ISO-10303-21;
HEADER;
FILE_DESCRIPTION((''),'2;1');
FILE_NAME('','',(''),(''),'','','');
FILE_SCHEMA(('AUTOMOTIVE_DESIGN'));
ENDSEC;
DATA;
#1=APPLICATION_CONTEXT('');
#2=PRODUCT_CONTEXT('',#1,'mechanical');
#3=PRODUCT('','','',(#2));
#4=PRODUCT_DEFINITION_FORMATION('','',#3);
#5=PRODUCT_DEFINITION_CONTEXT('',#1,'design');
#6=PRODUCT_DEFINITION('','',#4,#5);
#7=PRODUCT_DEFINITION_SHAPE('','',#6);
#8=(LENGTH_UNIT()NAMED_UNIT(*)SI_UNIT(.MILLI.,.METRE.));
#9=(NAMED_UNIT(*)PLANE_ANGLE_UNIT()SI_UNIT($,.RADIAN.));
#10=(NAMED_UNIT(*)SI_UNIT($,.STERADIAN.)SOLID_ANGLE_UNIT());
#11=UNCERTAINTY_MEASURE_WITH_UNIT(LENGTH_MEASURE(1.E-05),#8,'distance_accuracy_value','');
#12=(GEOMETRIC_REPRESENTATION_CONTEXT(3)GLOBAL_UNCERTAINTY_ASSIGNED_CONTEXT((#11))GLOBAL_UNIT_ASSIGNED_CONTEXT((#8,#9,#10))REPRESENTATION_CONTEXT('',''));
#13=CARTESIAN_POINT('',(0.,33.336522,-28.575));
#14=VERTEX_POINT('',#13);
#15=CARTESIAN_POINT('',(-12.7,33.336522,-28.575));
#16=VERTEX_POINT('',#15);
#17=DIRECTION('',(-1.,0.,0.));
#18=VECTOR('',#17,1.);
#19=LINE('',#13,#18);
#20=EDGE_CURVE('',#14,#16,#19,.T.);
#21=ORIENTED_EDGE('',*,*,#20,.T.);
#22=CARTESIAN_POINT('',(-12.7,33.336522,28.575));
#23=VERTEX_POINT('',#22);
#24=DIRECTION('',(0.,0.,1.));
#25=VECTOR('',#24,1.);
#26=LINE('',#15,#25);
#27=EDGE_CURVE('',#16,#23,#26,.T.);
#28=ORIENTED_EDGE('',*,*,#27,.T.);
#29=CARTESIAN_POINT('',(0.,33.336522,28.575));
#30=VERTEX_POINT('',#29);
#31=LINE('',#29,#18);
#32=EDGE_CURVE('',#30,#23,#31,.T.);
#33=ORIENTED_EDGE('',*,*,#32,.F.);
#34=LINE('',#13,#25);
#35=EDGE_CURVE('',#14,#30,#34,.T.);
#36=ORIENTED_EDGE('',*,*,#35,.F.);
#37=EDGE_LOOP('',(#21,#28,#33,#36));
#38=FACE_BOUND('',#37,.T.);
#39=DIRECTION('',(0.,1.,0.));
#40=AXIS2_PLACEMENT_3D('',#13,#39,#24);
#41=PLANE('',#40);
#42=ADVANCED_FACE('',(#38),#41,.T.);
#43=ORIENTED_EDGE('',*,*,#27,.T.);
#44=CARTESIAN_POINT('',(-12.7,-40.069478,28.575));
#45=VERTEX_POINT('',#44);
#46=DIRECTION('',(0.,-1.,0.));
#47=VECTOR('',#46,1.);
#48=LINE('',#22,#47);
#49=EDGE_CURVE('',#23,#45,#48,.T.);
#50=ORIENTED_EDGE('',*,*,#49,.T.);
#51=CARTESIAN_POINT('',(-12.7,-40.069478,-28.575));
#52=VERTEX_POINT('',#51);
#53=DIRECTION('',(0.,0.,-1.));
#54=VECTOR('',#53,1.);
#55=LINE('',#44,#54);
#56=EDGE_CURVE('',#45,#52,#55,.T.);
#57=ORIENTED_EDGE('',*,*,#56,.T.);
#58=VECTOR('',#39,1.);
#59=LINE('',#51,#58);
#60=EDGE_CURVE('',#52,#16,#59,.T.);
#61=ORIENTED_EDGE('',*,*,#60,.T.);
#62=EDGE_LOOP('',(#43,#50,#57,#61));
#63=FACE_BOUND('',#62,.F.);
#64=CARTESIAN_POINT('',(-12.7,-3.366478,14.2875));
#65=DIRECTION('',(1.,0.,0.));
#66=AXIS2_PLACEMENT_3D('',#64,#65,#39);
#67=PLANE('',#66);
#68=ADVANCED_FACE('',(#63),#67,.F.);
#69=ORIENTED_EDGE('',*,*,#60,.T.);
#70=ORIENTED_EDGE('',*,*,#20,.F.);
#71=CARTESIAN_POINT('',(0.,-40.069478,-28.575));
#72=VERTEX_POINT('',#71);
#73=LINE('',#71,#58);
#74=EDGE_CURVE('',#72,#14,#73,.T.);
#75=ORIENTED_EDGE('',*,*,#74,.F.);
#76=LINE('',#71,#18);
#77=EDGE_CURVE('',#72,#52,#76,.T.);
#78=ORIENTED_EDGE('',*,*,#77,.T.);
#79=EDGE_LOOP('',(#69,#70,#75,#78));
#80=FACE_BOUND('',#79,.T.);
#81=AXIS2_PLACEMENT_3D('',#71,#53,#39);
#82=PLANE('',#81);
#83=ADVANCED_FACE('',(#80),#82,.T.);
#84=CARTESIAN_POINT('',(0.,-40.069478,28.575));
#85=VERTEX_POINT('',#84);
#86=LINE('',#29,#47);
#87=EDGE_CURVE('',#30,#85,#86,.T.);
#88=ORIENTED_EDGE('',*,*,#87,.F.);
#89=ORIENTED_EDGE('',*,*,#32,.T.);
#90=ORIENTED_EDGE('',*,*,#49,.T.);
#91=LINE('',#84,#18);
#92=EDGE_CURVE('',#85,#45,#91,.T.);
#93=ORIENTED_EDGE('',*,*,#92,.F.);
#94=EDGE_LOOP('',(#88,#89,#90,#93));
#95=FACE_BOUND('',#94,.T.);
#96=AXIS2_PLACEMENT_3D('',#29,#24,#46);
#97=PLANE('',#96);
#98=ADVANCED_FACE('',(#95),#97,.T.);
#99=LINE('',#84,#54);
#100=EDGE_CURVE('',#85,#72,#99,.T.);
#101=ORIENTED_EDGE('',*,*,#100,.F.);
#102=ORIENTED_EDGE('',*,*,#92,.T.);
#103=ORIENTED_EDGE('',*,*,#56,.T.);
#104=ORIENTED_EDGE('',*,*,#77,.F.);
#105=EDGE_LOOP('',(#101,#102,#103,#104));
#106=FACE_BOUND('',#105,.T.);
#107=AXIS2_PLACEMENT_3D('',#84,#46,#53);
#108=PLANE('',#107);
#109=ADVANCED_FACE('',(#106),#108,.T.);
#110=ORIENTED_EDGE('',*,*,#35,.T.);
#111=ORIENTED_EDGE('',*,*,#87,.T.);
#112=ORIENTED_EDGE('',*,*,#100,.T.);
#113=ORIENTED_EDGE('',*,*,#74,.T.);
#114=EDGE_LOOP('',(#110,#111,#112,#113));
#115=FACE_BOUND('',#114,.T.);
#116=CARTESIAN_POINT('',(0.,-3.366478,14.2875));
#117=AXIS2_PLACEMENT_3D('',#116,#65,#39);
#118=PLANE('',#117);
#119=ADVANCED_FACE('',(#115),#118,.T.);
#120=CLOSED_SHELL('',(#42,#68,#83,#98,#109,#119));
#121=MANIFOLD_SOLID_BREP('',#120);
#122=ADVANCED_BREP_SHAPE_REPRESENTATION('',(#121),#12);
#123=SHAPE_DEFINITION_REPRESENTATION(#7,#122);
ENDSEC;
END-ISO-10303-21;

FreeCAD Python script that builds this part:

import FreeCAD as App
import Part
import Sketcher

V = App.Vector
Q = App.Units.Quantity


def add_polygon(sketch, points):
    """Adds a closed chain of lines whose ends are joined by coincident constraints."""
    first, n = sketch.GeometryCount, len(points)
    for a, b in zip(points, points[1:] + points[:1]):
        sketch.addGeometry(Part.LineSegment(App.Vector(*a, 0), App.Vector(*b, 0)), False)
    for i in range(n):
        sketch.addConstraint(Sketcher.Constraint("Coincident", first + i, 2, first + (i + 1) % n, 1))

doc = App.newDocument("Part")
body = doc.addObject("PartDesign::Body", "Body")

sketch1 = body.newObject("Sketcher::SketchObject", "Sketch")
sketch1.AttachmentSupport = (doc.getObject("YZ_Plane"), [""])
sketch1.MapMode = "FlatFace"
add_polygon(sketch1, [(33.336522, 28.575), (-40.069478, 28.575), (-40.069478, -28.575), (33.336522, -28.575)])
sketch1.addConstraint(Sketcher.Constraint("Horizontal", 0))
sketch1.addConstraint(Sketcher.Constraint("Vertical", 1))
sketch1.addConstraint(Sketcher.Constraint("Horizontal", 2))
sketch1.addConstraint(Sketcher.Constraint("Vertical", 3))
sketch1.addConstraint(Sketcher.Constraint("DistanceX", 0, 2, 0, 1, Q("2.89 in")))
sketch1.addConstraint(Sketcher.Constraint("DistanceY", 1, 2, 1, 1, Q("2.25 in")))
sketch1.addConstraint(Sketcher.Constraint("DistanceY", -1, 1, 0, 2, Q("1.125 in")))
sketch1.addConstraint(Sketcher.Constraint("DistanceX", 0, 2, -1, 1, 40.069478))
pad1 = body.newObject("PartDesign::Pad", "Pad")
pad1.Profile = sketch1
pad1.Length = Q("0.5 in")
pad1.Reversed = True

doc.recompute()
